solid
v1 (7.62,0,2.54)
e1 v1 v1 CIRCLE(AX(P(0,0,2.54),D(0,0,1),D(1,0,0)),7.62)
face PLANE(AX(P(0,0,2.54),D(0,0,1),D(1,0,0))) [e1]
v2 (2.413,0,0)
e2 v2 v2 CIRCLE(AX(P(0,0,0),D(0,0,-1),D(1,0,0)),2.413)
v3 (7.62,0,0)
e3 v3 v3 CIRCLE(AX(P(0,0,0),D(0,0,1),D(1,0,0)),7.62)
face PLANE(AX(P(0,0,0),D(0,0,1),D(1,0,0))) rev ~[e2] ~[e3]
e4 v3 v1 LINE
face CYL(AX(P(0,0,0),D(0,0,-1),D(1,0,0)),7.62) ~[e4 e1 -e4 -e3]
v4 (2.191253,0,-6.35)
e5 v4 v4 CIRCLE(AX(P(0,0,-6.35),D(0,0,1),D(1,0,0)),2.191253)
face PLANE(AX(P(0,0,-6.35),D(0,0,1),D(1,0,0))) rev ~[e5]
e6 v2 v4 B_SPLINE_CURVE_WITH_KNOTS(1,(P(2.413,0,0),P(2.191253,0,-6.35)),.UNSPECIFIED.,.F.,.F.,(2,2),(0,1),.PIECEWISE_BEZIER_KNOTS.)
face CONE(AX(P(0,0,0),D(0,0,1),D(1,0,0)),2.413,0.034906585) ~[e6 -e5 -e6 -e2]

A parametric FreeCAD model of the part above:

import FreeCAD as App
import Part
import Sketcher

V = App.Vector
Q = App.Units.Quantity

doc = App.newDocument("Part")
body = doc.addObject("PartDesign::Body", "Body")

sketch1 = doc.addObject("Sketcher::SketchObject", "Sketch")
body.addObject(sketch1)
sketch1.AttachmentSupport = (doc.XY_Plane, [""])
sketch1.MapMode = "FlatFace"
sketch1.addGeometry(Part.Circle(V(0, 0, 0), V(0, 0, 1), 8), False)
sketch1.addConstraint([
    Sketcher.Constraint("Coincident", 0, 3, -1, 1),
    Sketcher.Constraint("Diameter", 0, Q("0.6 in")),
])
pad1 = doc.addObject("PartDesign::Pad", "Pad")
body.addObject(pad1)
pad1.Profile = sketch1
pad1.Length = Q("0.1 in")

sketch2 = doc.addObject("Sketcher::SketchObject", "Sketch001")
body.addObject(sketch2)
sketch2.AttachmentSupport = (doc.XY_Plane, [""])
sketch2.MapMode = "FlatFace"
sketch2.addGeometry(Part.Circle(V(0, 0, 0), V(0, 0, 1), 2.4), False)
sketch2.addConstraint([
    Sketcher.Constraint("Coincident", 0, 3, -1, 1),
    Sketcher.Constraint("Diameter", 0, Q("0.19 in")),
])
pad2 = doc.addObject("PartDesign::Pad", "Pad001")
body.addObject(pad2)
pad2.Profile = sketch2
pad2.Length = Q("0.25 in")
pad2.Reversed = True
pad2.TaperAngle = -2

doc.recompute()
